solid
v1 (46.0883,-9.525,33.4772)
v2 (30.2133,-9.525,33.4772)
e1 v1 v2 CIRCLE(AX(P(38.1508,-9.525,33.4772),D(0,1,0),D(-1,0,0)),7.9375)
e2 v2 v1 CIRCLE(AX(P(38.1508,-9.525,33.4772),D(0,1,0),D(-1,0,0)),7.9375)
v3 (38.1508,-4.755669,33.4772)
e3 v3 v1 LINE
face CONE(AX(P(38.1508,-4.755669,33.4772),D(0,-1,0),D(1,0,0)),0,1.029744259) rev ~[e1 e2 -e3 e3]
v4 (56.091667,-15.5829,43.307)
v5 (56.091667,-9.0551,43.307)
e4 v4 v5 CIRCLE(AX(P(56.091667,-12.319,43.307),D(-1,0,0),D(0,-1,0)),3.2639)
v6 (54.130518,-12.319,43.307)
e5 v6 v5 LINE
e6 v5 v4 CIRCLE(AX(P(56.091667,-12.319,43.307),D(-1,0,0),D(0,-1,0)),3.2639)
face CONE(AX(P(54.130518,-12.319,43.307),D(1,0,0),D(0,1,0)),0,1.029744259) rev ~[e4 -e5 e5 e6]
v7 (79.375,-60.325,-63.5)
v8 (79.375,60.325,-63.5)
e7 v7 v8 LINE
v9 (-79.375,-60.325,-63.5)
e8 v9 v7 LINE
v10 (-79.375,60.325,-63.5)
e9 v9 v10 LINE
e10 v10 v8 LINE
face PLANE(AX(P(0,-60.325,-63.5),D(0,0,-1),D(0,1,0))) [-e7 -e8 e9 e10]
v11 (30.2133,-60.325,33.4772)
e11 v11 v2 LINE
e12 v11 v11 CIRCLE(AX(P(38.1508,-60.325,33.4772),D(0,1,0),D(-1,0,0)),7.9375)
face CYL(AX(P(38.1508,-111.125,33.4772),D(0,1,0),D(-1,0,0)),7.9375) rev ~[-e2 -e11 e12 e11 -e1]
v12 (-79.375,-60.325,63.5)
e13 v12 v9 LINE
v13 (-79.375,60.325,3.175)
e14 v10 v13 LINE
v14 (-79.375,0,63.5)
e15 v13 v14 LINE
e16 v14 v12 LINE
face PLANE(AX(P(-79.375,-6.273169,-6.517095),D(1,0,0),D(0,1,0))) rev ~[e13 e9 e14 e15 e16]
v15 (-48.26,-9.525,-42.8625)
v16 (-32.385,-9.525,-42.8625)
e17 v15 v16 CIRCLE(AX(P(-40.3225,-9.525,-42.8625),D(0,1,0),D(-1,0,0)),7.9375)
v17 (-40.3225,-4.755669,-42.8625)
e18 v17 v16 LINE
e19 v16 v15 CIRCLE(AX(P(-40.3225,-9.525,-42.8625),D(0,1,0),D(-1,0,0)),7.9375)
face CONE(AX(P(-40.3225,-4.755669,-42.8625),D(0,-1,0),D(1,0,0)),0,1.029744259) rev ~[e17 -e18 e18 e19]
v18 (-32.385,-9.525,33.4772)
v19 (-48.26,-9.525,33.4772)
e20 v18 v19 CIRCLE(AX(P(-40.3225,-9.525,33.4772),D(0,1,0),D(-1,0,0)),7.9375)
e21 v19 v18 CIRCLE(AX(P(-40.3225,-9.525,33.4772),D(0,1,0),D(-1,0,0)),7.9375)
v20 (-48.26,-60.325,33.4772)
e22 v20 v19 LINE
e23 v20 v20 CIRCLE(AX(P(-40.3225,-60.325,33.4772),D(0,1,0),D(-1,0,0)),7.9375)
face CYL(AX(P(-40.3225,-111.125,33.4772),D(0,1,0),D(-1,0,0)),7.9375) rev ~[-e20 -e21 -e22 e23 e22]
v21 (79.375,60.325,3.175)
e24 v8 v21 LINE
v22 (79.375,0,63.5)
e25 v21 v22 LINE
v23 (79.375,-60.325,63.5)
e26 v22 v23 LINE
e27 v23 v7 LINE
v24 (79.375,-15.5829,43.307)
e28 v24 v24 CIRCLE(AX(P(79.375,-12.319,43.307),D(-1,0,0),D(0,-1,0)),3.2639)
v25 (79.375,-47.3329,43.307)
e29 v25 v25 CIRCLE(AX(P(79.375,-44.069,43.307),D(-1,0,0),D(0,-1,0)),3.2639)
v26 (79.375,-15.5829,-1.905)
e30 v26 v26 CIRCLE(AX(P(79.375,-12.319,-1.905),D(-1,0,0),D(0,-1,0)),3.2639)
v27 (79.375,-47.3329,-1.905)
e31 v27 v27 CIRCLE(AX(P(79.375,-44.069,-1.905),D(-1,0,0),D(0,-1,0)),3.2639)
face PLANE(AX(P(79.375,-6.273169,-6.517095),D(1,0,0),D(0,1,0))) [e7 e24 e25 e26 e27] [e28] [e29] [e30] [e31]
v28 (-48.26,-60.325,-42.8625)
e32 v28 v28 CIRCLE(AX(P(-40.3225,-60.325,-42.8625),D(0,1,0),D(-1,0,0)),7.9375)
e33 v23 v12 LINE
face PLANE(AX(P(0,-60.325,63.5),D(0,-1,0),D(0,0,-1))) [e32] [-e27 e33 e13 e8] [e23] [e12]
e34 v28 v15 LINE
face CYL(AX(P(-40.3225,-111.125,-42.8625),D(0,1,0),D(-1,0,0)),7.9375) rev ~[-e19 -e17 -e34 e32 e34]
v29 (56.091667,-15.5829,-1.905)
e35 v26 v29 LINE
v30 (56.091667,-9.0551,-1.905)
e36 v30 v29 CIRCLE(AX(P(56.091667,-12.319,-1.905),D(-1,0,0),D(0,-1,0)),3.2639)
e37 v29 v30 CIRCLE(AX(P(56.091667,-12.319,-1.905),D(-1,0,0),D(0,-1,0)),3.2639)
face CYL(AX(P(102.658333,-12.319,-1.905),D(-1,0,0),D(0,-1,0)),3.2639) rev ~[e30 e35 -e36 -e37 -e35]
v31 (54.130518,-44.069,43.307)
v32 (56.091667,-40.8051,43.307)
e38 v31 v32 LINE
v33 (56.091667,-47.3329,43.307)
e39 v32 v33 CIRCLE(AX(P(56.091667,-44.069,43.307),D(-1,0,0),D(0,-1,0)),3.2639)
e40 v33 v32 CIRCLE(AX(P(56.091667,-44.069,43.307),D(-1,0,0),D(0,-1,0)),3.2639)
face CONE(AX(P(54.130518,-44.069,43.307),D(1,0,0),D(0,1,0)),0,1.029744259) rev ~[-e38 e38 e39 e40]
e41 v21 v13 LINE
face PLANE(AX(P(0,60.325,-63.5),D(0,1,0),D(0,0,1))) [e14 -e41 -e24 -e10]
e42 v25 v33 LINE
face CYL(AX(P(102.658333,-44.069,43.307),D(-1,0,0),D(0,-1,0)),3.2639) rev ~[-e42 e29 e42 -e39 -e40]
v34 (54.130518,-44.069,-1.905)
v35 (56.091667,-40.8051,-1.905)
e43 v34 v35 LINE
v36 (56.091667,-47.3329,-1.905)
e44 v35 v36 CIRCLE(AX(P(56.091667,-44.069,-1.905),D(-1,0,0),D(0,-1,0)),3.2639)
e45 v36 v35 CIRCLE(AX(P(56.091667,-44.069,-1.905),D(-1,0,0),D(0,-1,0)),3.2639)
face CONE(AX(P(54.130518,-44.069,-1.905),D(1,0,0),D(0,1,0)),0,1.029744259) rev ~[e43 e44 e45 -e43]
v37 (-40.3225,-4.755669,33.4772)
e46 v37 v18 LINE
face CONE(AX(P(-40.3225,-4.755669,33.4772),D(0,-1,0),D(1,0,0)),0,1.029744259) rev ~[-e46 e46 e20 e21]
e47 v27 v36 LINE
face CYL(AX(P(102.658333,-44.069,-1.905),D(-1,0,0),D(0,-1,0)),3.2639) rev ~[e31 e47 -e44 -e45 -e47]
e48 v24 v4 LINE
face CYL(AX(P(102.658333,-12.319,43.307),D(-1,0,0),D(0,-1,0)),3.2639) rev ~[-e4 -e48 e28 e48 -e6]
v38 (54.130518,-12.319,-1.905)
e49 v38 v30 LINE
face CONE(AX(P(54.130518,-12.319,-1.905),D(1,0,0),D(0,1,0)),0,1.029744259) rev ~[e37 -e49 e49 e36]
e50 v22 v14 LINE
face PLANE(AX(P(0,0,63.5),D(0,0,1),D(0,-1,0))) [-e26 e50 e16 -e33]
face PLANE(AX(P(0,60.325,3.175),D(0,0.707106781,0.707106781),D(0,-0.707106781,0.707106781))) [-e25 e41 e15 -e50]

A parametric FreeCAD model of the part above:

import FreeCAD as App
import Part
import Sketcher

V = App.Vector
Q = App.Units.Quantity


def add_polygon(sketch, points):
    """Adds a closed chain of lines whose ends are joined by coincident constraints."""
    first, n = sketch.GeometryCount, len(points)
    for a, b in zip(points, points[1:] + points[:1]):
        sketch.addGeometry(Part.LineSegment(App.Vector(*a, 0), App.Vector(*b, 0)), False)
    for i in range(n):
        sketch.addConstraint(Sketcher.Constraint("Coincident", first + i, 2, first + (i + 1) % n, 1))

doc = App.newDocument("Part")
body = doc.addObject("PartDesign::Body", "Body")

sketch1 = doc.addObject("Sketcher::SketchObject", "Sketch")
body.addObject(sketch1)
sketch1.AttachmentSupport = (doc.YZ_Plane, [""])
sketch1.MapMode = "FlatFace"
add_polygon(sketch1, [(-60, 64), (-60, -64), (60, -64), (60, 3), (0, 64)])
sketch1.addConstraint(Sketcher.Constraint("Vertical", 0))
sketch1.addConstraint(Sketcher.Constraint("Horizontal", 1))
sketch1.addConstraint(Sketcher.Constraint("Vertical", 2))
sketch1.addConstraint(Sketcher.Constraint("Horizontal", 4))
sketch1.addConstraint(Sketcher.Constraint("Symmetric", 1, 2, 4, 2, -1, 1))
sketch1.addConstraint(Sketcher.Constraint("PointOnObject", 3, 2, -2))
sketch1.addConstraint(Sketcher.Constraint("DistanceY", 0, 2, 0, 1, Q("5 in")))
sketch1.addConstraint(Sketcher.Constraint("Angle", 3, Q("135 deg")))
sketch1.addConstraint(Sketcher.Constraint("DistanceX", 1, 1, 1, 2, Q("4.75 in")))
pad1 = doc.addObject("PartDesign::Pad", "Pad")
body.addObject(pad1)
pad1.Profile = sketch1
pad1.Length = Q("6.25 in")
pad1.Midplane = True

sketch2 = doc.addObject("Sketcher::SketchObject", "Sketch001")
body.addObject(sketch2)
sketch2.AttachmentSupport = (doc.XZ_Plane, [""])
sketch2.MapMode = "FlatFace"
sketch2.AttachmentOffset = App.Placement(V(0, 0, 2.375 * 25.4), App.Rotation())
sketch2.addGeometry(Part.Circle(V(-40, -43, 0), V(0, 0, 1), 8), False)
sketch2.addGeometry(Part.Circle(V(-40, 33, 0), V(0, 0, 1), 8), False)
sketch2.addGeometry(Part.Circle(V(38, 33, 0), V(0, 0, 1), 8), False)
sketch2.addConstraint(Sketcher.Constraint("Equal", 0, 1))
sketch2.addConstraint(Sketcher.Constraint("Equal", 1, 2))
sketch2.addConstraint(Sketcher.Constraint("Horizontal", 1, 3, 2, 3))
sketch2.addConstraint(Sketcher.Constraint("Vertical", 0, 3, 1, 3))
sketch2.addConstraint(Sketcher.Constraint("Diameter", 0, Q("0.625 in")))
sketch2.addConstraint(Sketcher.Constraint("DistanceY", 0, 3, -1, 1, Q("1.6875 in")))
sketch2.addConstraint(Sketcher.Constraint("DistanceY", -1, 1, 1, 3, Q("1.318 in")))
sketch2.addConstraint(Sketcher.Constraint("DistanceX", -1, 1, 2, 3, Q("1.502 in")))
sketch2.addConstraint(Sketcher.Constraint("DistanceX", 0, 3, -1, 1, Q("1.5875 in")))
doc.recompute()
hole = doc.addObject("PartDesign::Hole", "Hole")
body.addObject(hole)
hole.Profile = sketch2
hole.ThreadType = "None"
hole.Diameter = Q("0.625 in")
hole.DepthType = "Dimension"
hole.Depth = Q("2 in")
hole.DrillPoint = "Angled"
hole.DrillPointAngle = 118

sketch3 = doc.addObject("Sketcher::SketchObject", "Sketch002")
body.addObject(sketch3)
sketch3.AttachmentSupport = (doc.YZ_Plane, [""])
sketch3.MapMode = "FlatFace"
sketch3.AttachmentOffset = App.Placement(V(0, 0, 3.125 * 25.4), App.Rotation())
sketch3.addGeometry(Part.Circle(V(-44.1, 43.3, 0), V(0, 0, 1), 3.3), False)
sketch3.addGeometry(Part.Circle(V(-44.1, -1.9, 0), V(0, 0, 1), 3.3), False)
sketch3.addGeometry(Part.Circle(V(-12.3, -1.9, 0), V(0, 0, 1), 3.3), False)
sketch3.addGeometry(Part.Circle(V(-12.3, 43.3, 0), V(0, 0, 1), 3.3), False)
sketch3.addConstraint(Sketcher.Constraint("Equal", 0, 1))
sketch3.addConstraint(Sketcher.Constraint("Equal", 1, 2))
sketch3.addConstraint(Sketcher.Constraint("Equal", 2, 3))
sketch3.addConstraint(Sketcher.Constraint("Horizontal", 1, 3, 2, 3))
sketch3.addConstraint(Sketcher.Constraint("Horizontal", 0, 3, 3, 3))
sketch3.addConstraint(Sketcher.Constraint("Vertical", 0, 3, 1, 3))
sketch3.addConstraint(Sketcher.Constraint("Vertical", 2, 3, 3, 3))
sketch3.addConstraint(Sketcher.Constraint("Diameter", 0, Q("0.257 in")))
sketch3.addConstraint(Sketcher.Constraint("DistanceY", 1, 3, 0, 3, Q("1.78 in")))
sketch3.addConstraint(Sketcher.Constraint("DistanceX", 1, 3, 2, 3, Q("1.25 in")))
sketch3.addConstraint(Sketcher.Constraint("DistanceX", 0, 3, -1, 1, Q("1.735 in")))
sketch3.addConstraint(Sketcher.Constraint("DistanceY", -1, 1, 0, 3, Q("1.705 in")))
doc.recompute()
hole2 = doc.addObject("PartDesign::Hole", "Hole001")
body.addObject(hole2)
hole2.Profile = sketch3
hole2.ThreadType = "None"
hole2.Diameter = Q("0.257 in")
hole2.DepthType = "Dimension"
hole2.Depth = 23.283333
hole2.DrillPoint = "Angled"
hole2.DrillPointAngle = 118

doc.recompute()
